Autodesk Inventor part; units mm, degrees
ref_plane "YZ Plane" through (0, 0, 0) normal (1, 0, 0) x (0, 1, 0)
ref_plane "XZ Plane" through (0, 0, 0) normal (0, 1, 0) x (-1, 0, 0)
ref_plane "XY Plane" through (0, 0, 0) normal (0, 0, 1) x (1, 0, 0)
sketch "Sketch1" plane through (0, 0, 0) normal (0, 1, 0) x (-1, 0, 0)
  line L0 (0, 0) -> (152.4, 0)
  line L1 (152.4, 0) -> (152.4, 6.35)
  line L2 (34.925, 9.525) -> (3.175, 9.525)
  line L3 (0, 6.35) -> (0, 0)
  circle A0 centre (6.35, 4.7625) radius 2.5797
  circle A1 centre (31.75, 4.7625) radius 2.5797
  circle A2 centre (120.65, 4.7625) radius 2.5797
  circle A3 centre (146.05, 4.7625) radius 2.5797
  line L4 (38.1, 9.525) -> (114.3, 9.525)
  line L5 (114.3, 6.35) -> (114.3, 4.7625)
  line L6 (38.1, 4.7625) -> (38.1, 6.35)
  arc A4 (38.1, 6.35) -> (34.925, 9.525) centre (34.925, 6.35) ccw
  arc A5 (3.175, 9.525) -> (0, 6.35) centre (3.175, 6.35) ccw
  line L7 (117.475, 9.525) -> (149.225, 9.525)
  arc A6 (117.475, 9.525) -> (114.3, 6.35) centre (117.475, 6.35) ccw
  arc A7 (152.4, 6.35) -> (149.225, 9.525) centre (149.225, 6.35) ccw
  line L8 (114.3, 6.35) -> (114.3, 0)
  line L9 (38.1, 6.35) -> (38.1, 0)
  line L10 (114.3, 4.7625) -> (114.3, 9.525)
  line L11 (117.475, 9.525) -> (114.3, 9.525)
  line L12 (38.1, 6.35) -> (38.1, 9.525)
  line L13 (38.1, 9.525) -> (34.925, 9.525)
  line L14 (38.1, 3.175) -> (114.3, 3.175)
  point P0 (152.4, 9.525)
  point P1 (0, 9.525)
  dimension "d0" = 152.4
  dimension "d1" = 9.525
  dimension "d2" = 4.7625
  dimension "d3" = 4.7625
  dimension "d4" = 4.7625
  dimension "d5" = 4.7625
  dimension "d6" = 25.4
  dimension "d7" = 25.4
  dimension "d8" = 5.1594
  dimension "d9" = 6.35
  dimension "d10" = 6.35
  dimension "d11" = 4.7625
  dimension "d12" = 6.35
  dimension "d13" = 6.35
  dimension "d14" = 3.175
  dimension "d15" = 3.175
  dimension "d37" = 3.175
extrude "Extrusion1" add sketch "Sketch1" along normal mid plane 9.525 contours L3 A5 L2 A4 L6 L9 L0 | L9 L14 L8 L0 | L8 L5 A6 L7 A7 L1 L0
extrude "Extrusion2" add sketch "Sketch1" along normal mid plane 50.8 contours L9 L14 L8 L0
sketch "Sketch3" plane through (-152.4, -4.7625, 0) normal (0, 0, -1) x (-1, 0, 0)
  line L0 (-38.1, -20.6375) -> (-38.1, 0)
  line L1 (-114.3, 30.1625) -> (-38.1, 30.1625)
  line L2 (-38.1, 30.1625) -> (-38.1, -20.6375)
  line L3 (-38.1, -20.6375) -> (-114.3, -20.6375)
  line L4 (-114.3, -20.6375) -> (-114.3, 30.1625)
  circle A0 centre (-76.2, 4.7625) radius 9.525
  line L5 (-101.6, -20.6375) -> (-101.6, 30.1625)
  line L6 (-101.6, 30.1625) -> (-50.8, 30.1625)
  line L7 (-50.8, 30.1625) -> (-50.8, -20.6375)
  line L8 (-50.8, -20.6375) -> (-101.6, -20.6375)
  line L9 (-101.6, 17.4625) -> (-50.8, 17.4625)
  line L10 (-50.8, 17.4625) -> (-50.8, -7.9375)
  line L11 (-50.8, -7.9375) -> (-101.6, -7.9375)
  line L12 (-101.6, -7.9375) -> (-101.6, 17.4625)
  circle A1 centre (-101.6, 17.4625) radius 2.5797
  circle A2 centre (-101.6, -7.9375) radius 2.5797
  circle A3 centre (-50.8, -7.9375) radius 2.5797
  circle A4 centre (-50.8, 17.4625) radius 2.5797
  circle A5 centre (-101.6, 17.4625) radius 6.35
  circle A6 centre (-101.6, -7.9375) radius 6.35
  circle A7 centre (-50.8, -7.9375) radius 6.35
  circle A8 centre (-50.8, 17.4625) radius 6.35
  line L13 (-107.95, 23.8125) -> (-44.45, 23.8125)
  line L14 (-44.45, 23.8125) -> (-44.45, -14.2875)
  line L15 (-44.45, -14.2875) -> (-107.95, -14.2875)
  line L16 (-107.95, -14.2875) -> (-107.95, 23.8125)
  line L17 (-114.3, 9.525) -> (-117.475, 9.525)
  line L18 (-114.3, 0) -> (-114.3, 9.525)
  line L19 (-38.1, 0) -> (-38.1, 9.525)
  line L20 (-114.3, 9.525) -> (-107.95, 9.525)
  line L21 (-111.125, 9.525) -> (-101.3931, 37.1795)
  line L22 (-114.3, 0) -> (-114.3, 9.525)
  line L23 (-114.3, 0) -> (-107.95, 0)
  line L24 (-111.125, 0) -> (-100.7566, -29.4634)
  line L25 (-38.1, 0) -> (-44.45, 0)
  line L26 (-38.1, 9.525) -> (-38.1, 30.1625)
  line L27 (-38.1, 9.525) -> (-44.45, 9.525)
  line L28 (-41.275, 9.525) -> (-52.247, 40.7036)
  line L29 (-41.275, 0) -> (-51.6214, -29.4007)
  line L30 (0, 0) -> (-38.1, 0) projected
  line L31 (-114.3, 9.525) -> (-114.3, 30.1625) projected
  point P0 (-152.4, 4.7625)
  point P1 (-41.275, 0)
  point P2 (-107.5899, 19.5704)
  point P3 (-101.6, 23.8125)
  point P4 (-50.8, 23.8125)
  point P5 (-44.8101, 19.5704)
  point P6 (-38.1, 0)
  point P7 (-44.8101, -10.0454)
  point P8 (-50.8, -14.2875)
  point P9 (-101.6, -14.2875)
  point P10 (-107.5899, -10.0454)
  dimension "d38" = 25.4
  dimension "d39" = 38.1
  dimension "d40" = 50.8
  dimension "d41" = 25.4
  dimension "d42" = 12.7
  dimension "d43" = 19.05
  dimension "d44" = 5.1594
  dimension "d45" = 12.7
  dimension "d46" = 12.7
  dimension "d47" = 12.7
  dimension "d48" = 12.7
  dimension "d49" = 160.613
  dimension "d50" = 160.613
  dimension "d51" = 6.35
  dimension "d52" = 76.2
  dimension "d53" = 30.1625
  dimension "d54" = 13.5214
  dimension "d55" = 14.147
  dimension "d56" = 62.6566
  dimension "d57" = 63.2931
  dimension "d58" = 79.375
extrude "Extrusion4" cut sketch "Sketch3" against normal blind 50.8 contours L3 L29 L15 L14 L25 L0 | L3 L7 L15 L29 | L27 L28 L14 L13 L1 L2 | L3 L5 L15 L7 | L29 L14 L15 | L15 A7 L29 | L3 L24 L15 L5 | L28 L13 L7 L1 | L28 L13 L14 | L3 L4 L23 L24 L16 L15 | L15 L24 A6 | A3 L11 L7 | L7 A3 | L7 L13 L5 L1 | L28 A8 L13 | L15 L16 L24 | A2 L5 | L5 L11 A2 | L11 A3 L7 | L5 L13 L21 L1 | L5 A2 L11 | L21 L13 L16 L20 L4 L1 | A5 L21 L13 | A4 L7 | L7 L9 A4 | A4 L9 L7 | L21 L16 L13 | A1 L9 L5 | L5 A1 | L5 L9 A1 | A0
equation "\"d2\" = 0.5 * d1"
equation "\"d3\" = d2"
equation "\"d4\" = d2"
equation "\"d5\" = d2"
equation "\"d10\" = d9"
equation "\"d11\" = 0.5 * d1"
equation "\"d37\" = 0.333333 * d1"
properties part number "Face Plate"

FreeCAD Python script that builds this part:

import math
import FreeCAD as App
import Part
import Sketcher
from FreeCAD import Vector
Q = App.Units.Quantity

doc = App.newDocument("Part")
body = doc.addObject("PartDesign::Body", "Body")

# Sketch on XZ plane
sketch1 = body.newObject("Sketcher::SketchObject", "Sketch")
sketch1.AttachmentSupport = (doc.getObject("XZ_Plane"), [""])
sketch1.MapMode = "FlatFace"
sketch1.addGeometry([
    Part.LineSegment(Vector(0, 6.35, 0), Vector(0, 0, 0)),  # 0
    Part.LineSegment(Vector(0, 0, 0), Vector(-152.4, 0, 0)),  # 1
    Part.LineSegment(Vector(-152.4, 0, 0), Vector(-152.4, 6.35, 0)),  # 2
    Part.ArcOfCircle(Part.Circle(Vector(-149.225, 6.35, 0), Vector(0, 0, 1), 3.175), math.radians(90), math.radians(180)),  # 3
    Part.LineSegment(Vector(-149.225, 9.525, 0), Vector(-117.475, 9.525, 0)),  # 4
    Part.ArcOfCircle(Part.Circle(Vector(-117.475, 6.35, 0), Vector(0, 0, 1), 3.175), math.radians(0), math.radians(90)),  # 5
    Part.LineSegment(Vector(-114.3, 6.35, 0), Vector(-114.3, 3.175, 0)),  # 6
    Part.LineSegment(Vector(-114.3, 3.175, 0), Vector(-38.1, 3.175, 0)),  # 7
    Part.LineSegment(Vector(-38.1, 3.175, 0), Vector(-38.1, 6.35, 0)),  # 8
    Part.ArcOfCircle(Part.Circle(Vector(-34.925, 6.35, 0), Vector(0, 0, 1), 3.175), math.radians(90), math.radians(180)),  # 9
    Part.LineSegment(Vector(-34.925, 9.525, 0), Vector(-3.175, 9.525, 0)),  # 10
    Part.ArcOfCircle(Part.Circle(Vector(-3.175, 6.35, 0), Vector(0, 0, 1), 3.175), math.radians(0), math.radians(90)),  # 11
    Part.Circle(Vector(-6.35, 4.7625, 0), Vector(0, 0, 1), 2.5797),  # 12
    Part.Circle(Vector(-31.75, 4.7625, 0), Vector(0, 0, 1), 2.5797),  # 13
    Part.Circle(Vector(-146.05, 4.7625, 0), Vector(0, 0, 1), 2.5797),  # 14
    Part.Circle(Vector(-120.65, 4.7625, 0), Vector(0, 0, 1), 2.5797),  # 15
], False)
sketch1.addConstraint([
    Sketcher.Constraint("Coincident", 0, 2, 1, 1),
    Sketcher.Constraint("Coincident", 1, 2, 2, 1),
    Sketcher.Constraint("Tangent", 2, 2, 3, 2),
    Sketcher.Constraint("Tangent", 3, 1, 4, 1),
    Sketcher.Constraint("Tangent", 4, 2, 5, 2),
    Sketcher.Constraint("Tangent", 5, 1, 6, 1),
    Sketcher.Constraint("Coincident", 6, 2, 7, 1),
    Sketcher.Constraint("Coincident", 7, 2, 8, 1),
    Sketcher.Constraint("Tangent", 8, 2, 9, 2),
    Sketcher.Constraint("Tangent", 9, 1, 10, 1),
    Sketcher.Constraint("Tangent", 10, 2, 11, 2),
    Sketcher.Constraint("Tangent", 11, 1, 0, 1),
    Sketcher.Constraint("Vertical", 0),
    Sketcher.Constraint("Horizontal", 1),
    Sketcher.Constraint("Vertical", 2),
    Sketcher.Constraint("Horizontal", 4),
    Sketcher.Constraint("Vertical", 6),
    Sketcher.Constraint("Horizontal", 7),
    Sketcher.Constraint("Vertical", 8),
    Sketcher.Constraint("Horizontal", 10),
    Sketcher.Constraint("Coincident", 0, 2, -1, 1),
    Sketcher.Constraint("Equal", 3, 5),
    Sketcher.Constraint("Equal", 5, 9),
    Sketcher.Constraint("Equal", 9, 11),
    Sketcher.Constraint("Equal", 12, 13),
    Sketcher.Constraint("Equal", 13, 14),
    Sketcher.Constraint("Equal", 14, 15),
    Sketcher.Constraint("Horizontal", 5, 3, 9, 3),
    Sketcher.Constraint("Horizontal", 12, 3, 13, 3),
    Sketcher.Constraint("Horizontal", 13, 3, 14, 3),
    Sketcher.Constraint("Horizontal", 14, 3, 15, 3),
    Sketcher.Constraint("Equal", 4, 10),
    Sketcher.Constraint("DistanceX", 1, 2, 1, 1, Q("6 in")),
    Sketcher.Constraint("Diameter", 12, Q("0.203126 in")),
    Sketcher.Constraint("Radius", 3, Q("0.125 in")),
    Sketcher.Constraint("DistanceX", 13, 3, 12, 3, Q("1 in")),
    Sketcher.Constraint("DistanceX", 14, 3, 15, 3, Q("1 in")),
    Sketcher.Constraint("DistanceY", 0, 2, 0, 1, Q("0.25 in")),
    Sketcher.Constraint("DistanceX", 7, 1, 7, 2, Q("3 in")),
    Sketcher.Constraint("DistanceY", 6, 2, 6, 1, Q("0.125 in")),
    Sketcher.Constraint("DistanceX", 12, 3, -1, 1, Q("0.25 in")),
    Sketcher.Constraint("DistanceX", 1, 2, 14, 3, Q("0.25 in")),
    Sketcher.Constraint("DistanceY", -1, 1, 12, 3, Q("0.1875 in")),
])
pad1 = body.newObject("PartDesign::Pad", "Pad")
pad1.Profile = sketch1
pad1.Length = Q("0.375 in")
pad1.Midplane = True

# Sketch on XZ plane
sketch2 = body.newObject("Sketcher::SketchObject", "Sketch001")
sketch2.AttachmentSupport = (doc.getObject("XZ_Plane"), [""])
sketch2.MapMode = "FlatFace"
sketch2.addGeometry([
    Part.LineSegment(Vector(-38.1, 3.175, 0), Vector(-38.1, 0, 0)),
    Part.LineSegment(Vector(-38.1, 0, 0), Vector(-114.3, 0, 0)),
    Part.LineSegment(Vector(-114.3, 0, 0), Vector(-114.3, 3.175, 0)),
    Part.LineSegment(Vector(-114.3, 3.175, 0), Vector(-38.1, 3.175, 0)),
], False)
sketch2.addConstraint([
    Sketcher.Constraint("Coincident", 0, 2, 1, 1),
    Sketcher.Constraint("Coincident", 1, 2, 2, 1),
    Sketcher.Constraint("Coincident", 2, 2, 3, 1),
    Sketcher.Constraint("Coincident", 3, 2, 0, 1),
    Sketcher.Constraint("Vertical", 0),
    Sketcher.Constraint("Horizontal", 1),
    Sketcher.Constraint("Vertical", 2),
    Sketcher.Constraint("Horizontal", 3),
    Sketcher.Constraint("PointOnObject", 0, 2, -1),
    Sketcher.Constraint("DistanceX", 1, 2, 1, 1, Q("3 in")),
    Sketcher.Constraint("DistanceY", 0, 2, 0, 1, Q("0.125 in")),
    Sketcher.Constraint("DistanceX", 0, 2, -1, 1, Q("1.5 in")),
])
pad2 = body.newObject("PartDesign::Pad", "Pad001")
pad2.Profile = sketch2
pad2.Length = Q("2 in")
pad2.Midplane = True

# Sketch on XY plane
sketch3 = body.newObject("Sketcher::SketchObject", "Sketch002")
sketch3.AttachmentSupport = (doc.getObject("XY_Plane"), [""])
sketch3.MapMode = "FlatFace"
sketch3.addGeometry([
    Part.LineSegment(Vector(-114.3, -25.4, 0), Vector(-114.3, -4.7625, 0)),  # 0
    Part.LineSegment(Vector(-114.3, -4.7625, 0), Vector(-111.125, -4.7625, 0)),  # 1
    Part.LineSegment(Vector(-111.125, -4.7625, 0), Vector(-107.589922, -14.807913, 0)),  # 2
    Part.ArcOfCircle(Part.Circle(Vector(-101.6, -12.7, 0), Vector(0, 0, 1), 6.35), math.radians(-160.61252), math.radians(-90)),  # 3
    Part.LineSegment(Vector(-101.6, -19.05, 0), Vector(-50.8, -19.05, 0)),  # 4
    Part.ArcOfCircle(Part.Circle(Vector(-50.8, -12.7, 0), Vector(0, 0, 1), 6.35), math.radians(-90), math.radians(-19.387367)),  # 5
    Part.LineSegment(Vector(-44.810064, -14.807905, 0), Vector(-41.275, -4.7625, 0)),  # 6
    Part.LineSegment(Vector(-41.275, -4.7625, 0), Vector(-38.1, -4.7625, 0)),  # 7
    Part.LineSegment(Vector(-38.1, -4.7625, 0), Vector(-38.1, -25.4, 0)),  # 8
    Part.LineSegment(Vector(-38.1, -25.4, 0), Vector(-114.3, -25.4, 0)),  # 9
    Part.LineSegment(Vector(-111.125, 4.7625, 0), Vector(-114.3, 4.7625, 0)),  # 10
    Part.LineSegment(Vector(-114.3, 4.7625, 0), Vector(-114.3, 25.4, 0)),  # 11
    Part.LineSegment(Vector(-114.3, 25.4, 0), Vector(-38.1, 25.4, 0)),  # 12
    Part.LineSegment(Vector(-38.1, 25.4, 0), Vector(-38.1, 4.7625, 0)),  # 13
    Part.LineSegment(Vector(-38.1, 4.7625, 0), Vector(-41.275, 4.7625, 0)),  # 14
    Part.LineSegment(Vector(-41.275, 4.7625, 0), Vector(-44.810079, 14.807914, 0)),  # 15
    Part.ArcOfCircle(Part.Circle(Vector(-50.8, 12.7, 0), Vector(0, 0, 1), 6.35), math.radians(19.387489), math.radians(90)),  # 16
    Part.LineSegment(Vector(-50.8, 19.05, 0), Vector(-101.6, 19.05, 0)),  # 17
    Part.ArcOfCircle(Part.Circle(Vector(-101.6, 12.7, 0), Vector(0, 0, 1), 6.35), math.radians(90), math.radians(160.61262)),  # 18
    Part.LineSegment(Vector(-107.589934, 14.807906, 0), Vector(-111.125, 4.7625, 0)),  # 19
    Part.Circle(Vector(-101.6, -12.7, 0), Vector(0, 0, 1), 2.5797),  # 20
    Part.Circle(Vector(-50.8, -12.7, 0), Vector(0, 0, 1), 2.5797),  # 21
    Part.Circle(Vector(-101.6, 12.7, 0), Vector(0, 0, 1), 2.5797),  # 22
    Part.Circle(Vector(-50.8, 12.7, 0), Vector(0, 0, 1), 2.5797),  # 23
    Part.Circle(Vector(-76.2, 0, 0), Vector(0, 0, 1), 9.525),  # 24
], False)
sketch3.addConstraint([
    Sketcher.Constraint("Coincident", 0, 2, 1, 1),
    Sketcher.Constraint("Coincident", 1, 2, 2, 1),
    Sketcher.Constraint("Tangent", 2, 2, 3, 1),
    Sketcher.Constraint("Tangent", 3, 2, 4, 1),
    Sketcher.Constraint("Tangent", 4, 2, 5, 1),
    Sketcher.Constraint("Tangent", 5, 2, 6, 1),
    Sketcher.Constraint("Coincident", 6, 2, 7, 1),
    Sketcher.Constraint("Coincident", 7, 2, 8, 1),
    Sketcher.Constraint("Coincident", 8, 2, 9, 1),
    Sketcher.Constraint("Coincident", 9, 2, 0, 1),
    Sketcher.Constraint("Coincident", 10, 2, 11, 1),
    Sketcher.Constraint("Coincident", 11, 2, 12, 1),
    Sketcher.Constraint("Coincident", 12, 2, 13, 1),
    Sketcher.Constraint("Coincident", 13, 2, 14, 1),
    Sketcher.Constraint("Coincident", 14, 2, 15, 1),
    Sketcher.Constraint("Tangent", 15, 2, 16, 1),
    Sketcher.Constraint("Tangent", 16, 2, 17, 1),
    Sketcher.Constraint("Tangent", 17, 2, 18, 1),
    Sketcher.Constraint("Tangent", 18, 2, 19, 1),
    Sketcher.Constraint("Coincident", 19, 2, 10, 1),
    Sketcher.Constraint("Vertical", 0),
    Sketcher.Constraint("Horizontal", 1),
    Sketcher.Constraint("Horizontal", 4),
    Sketcher.Constraint("Horizontal", 7),
    Sketcher.Constraint("Vertical", 8),
    Sketcher.Constraint("Horizontal", 9),
    Sketcher.Constraint("Horizontal", 10),
    Sketcher.Constraint("Vertical", 11),
    Sketcher.Constraint("Horizontal", 12),
    Sketcher.Constraint("Vertical", 13),
    Sketcher.Constraint("Horizontal", 14),
    Sketcher.Constraint("Horizontal", 17),
    Sketcher.Constraint("Coincident", 20, 3, 3, 3),
    Sketcher.Constraint("Coincident", 21, 3, 5, 3),
    Sketcher.Constraint("Coincident", 22, 3, 18, 3),
    Sketcher.Constraint("Coincident", 23, 3, 16, 3),
    Sketcher.Constraint("Equal", 3, 5),
    Sketcher.Constraint("Equal", 5, 16),
    Sketcher.Constraint("Equal", 16, 18),
    Sketcher.Constraint("Equal", 20, 21),
    Sketcher.Constraint("Equal", 21, 22),
    Sketcher.Constraint("Equal", 22, 23),
    Sketcher.Constraint("Symmetric", 5, 3, 16, 3, -1),
    Sketcher.Constraint("Symmetric", 0, 2, 10, 2, -1),
    Sketcher.Constraint("Symmetric", 8, 2, 12, 2, -1),
    Sketcher.Constraint("Symmetric", 6, 2, 14, 2, -1),
    Sketcher.Constraint("Symmetric", 2, 2, 18, 2, -1),
    Sketcher.Constraint("PointOnObject", 24, 3, -1),
    Sketcher.Constraint("Parallel", 2, 15),
    Sketcher.Constraint("Horizontal", 1, 2, 6, 2),
    Sketcher.Constraint("Equal", 1, 7),
    Sketcher.Constraint("Diameter", 24, Q("0.75 in")),
    Sketcher.Constraint("DistanceX", 4, 1, 4, 2, Q("2 in")),
    Sketcher.Constraint("DistanceX", 9, 2, 9, 1, Q("3 in")),
    Sketcher.Constraint("Radius", 3, Q("0.25 in")),
    Sketcher.Constraint("Diameter", 20, Q("0.203126 in")),
    Sketcher.Constraint("DistanceX", 5, 3, -1, 1, Q("2 in")),
    Sketcher.Constraint("DistanceX", 24, 3, -1, 1, Q("3 in")),
    Sketcher.Constraint("DistanceY", 8, 2, -1, 1, Q("1 in")),
    Sketcher.Constraint("DistanceY", 5, 3, 16, 3, Q("1 in")),
    Sketcher.Constraint("DistanceY", 0, 2, 11, 2, Q("1.1875 in")),
    Sketcher.Constraint("DistanceX", 1, 1, 1, 2, Q("0.125 in")),
])
pocket1 = body.newObject("PartDesign::Pocket", "Pocket")
pocket1.Profile = sketch3
pocket1.Length = Q("2 in")
pocket1.Reversed = True

doc.recompute()
